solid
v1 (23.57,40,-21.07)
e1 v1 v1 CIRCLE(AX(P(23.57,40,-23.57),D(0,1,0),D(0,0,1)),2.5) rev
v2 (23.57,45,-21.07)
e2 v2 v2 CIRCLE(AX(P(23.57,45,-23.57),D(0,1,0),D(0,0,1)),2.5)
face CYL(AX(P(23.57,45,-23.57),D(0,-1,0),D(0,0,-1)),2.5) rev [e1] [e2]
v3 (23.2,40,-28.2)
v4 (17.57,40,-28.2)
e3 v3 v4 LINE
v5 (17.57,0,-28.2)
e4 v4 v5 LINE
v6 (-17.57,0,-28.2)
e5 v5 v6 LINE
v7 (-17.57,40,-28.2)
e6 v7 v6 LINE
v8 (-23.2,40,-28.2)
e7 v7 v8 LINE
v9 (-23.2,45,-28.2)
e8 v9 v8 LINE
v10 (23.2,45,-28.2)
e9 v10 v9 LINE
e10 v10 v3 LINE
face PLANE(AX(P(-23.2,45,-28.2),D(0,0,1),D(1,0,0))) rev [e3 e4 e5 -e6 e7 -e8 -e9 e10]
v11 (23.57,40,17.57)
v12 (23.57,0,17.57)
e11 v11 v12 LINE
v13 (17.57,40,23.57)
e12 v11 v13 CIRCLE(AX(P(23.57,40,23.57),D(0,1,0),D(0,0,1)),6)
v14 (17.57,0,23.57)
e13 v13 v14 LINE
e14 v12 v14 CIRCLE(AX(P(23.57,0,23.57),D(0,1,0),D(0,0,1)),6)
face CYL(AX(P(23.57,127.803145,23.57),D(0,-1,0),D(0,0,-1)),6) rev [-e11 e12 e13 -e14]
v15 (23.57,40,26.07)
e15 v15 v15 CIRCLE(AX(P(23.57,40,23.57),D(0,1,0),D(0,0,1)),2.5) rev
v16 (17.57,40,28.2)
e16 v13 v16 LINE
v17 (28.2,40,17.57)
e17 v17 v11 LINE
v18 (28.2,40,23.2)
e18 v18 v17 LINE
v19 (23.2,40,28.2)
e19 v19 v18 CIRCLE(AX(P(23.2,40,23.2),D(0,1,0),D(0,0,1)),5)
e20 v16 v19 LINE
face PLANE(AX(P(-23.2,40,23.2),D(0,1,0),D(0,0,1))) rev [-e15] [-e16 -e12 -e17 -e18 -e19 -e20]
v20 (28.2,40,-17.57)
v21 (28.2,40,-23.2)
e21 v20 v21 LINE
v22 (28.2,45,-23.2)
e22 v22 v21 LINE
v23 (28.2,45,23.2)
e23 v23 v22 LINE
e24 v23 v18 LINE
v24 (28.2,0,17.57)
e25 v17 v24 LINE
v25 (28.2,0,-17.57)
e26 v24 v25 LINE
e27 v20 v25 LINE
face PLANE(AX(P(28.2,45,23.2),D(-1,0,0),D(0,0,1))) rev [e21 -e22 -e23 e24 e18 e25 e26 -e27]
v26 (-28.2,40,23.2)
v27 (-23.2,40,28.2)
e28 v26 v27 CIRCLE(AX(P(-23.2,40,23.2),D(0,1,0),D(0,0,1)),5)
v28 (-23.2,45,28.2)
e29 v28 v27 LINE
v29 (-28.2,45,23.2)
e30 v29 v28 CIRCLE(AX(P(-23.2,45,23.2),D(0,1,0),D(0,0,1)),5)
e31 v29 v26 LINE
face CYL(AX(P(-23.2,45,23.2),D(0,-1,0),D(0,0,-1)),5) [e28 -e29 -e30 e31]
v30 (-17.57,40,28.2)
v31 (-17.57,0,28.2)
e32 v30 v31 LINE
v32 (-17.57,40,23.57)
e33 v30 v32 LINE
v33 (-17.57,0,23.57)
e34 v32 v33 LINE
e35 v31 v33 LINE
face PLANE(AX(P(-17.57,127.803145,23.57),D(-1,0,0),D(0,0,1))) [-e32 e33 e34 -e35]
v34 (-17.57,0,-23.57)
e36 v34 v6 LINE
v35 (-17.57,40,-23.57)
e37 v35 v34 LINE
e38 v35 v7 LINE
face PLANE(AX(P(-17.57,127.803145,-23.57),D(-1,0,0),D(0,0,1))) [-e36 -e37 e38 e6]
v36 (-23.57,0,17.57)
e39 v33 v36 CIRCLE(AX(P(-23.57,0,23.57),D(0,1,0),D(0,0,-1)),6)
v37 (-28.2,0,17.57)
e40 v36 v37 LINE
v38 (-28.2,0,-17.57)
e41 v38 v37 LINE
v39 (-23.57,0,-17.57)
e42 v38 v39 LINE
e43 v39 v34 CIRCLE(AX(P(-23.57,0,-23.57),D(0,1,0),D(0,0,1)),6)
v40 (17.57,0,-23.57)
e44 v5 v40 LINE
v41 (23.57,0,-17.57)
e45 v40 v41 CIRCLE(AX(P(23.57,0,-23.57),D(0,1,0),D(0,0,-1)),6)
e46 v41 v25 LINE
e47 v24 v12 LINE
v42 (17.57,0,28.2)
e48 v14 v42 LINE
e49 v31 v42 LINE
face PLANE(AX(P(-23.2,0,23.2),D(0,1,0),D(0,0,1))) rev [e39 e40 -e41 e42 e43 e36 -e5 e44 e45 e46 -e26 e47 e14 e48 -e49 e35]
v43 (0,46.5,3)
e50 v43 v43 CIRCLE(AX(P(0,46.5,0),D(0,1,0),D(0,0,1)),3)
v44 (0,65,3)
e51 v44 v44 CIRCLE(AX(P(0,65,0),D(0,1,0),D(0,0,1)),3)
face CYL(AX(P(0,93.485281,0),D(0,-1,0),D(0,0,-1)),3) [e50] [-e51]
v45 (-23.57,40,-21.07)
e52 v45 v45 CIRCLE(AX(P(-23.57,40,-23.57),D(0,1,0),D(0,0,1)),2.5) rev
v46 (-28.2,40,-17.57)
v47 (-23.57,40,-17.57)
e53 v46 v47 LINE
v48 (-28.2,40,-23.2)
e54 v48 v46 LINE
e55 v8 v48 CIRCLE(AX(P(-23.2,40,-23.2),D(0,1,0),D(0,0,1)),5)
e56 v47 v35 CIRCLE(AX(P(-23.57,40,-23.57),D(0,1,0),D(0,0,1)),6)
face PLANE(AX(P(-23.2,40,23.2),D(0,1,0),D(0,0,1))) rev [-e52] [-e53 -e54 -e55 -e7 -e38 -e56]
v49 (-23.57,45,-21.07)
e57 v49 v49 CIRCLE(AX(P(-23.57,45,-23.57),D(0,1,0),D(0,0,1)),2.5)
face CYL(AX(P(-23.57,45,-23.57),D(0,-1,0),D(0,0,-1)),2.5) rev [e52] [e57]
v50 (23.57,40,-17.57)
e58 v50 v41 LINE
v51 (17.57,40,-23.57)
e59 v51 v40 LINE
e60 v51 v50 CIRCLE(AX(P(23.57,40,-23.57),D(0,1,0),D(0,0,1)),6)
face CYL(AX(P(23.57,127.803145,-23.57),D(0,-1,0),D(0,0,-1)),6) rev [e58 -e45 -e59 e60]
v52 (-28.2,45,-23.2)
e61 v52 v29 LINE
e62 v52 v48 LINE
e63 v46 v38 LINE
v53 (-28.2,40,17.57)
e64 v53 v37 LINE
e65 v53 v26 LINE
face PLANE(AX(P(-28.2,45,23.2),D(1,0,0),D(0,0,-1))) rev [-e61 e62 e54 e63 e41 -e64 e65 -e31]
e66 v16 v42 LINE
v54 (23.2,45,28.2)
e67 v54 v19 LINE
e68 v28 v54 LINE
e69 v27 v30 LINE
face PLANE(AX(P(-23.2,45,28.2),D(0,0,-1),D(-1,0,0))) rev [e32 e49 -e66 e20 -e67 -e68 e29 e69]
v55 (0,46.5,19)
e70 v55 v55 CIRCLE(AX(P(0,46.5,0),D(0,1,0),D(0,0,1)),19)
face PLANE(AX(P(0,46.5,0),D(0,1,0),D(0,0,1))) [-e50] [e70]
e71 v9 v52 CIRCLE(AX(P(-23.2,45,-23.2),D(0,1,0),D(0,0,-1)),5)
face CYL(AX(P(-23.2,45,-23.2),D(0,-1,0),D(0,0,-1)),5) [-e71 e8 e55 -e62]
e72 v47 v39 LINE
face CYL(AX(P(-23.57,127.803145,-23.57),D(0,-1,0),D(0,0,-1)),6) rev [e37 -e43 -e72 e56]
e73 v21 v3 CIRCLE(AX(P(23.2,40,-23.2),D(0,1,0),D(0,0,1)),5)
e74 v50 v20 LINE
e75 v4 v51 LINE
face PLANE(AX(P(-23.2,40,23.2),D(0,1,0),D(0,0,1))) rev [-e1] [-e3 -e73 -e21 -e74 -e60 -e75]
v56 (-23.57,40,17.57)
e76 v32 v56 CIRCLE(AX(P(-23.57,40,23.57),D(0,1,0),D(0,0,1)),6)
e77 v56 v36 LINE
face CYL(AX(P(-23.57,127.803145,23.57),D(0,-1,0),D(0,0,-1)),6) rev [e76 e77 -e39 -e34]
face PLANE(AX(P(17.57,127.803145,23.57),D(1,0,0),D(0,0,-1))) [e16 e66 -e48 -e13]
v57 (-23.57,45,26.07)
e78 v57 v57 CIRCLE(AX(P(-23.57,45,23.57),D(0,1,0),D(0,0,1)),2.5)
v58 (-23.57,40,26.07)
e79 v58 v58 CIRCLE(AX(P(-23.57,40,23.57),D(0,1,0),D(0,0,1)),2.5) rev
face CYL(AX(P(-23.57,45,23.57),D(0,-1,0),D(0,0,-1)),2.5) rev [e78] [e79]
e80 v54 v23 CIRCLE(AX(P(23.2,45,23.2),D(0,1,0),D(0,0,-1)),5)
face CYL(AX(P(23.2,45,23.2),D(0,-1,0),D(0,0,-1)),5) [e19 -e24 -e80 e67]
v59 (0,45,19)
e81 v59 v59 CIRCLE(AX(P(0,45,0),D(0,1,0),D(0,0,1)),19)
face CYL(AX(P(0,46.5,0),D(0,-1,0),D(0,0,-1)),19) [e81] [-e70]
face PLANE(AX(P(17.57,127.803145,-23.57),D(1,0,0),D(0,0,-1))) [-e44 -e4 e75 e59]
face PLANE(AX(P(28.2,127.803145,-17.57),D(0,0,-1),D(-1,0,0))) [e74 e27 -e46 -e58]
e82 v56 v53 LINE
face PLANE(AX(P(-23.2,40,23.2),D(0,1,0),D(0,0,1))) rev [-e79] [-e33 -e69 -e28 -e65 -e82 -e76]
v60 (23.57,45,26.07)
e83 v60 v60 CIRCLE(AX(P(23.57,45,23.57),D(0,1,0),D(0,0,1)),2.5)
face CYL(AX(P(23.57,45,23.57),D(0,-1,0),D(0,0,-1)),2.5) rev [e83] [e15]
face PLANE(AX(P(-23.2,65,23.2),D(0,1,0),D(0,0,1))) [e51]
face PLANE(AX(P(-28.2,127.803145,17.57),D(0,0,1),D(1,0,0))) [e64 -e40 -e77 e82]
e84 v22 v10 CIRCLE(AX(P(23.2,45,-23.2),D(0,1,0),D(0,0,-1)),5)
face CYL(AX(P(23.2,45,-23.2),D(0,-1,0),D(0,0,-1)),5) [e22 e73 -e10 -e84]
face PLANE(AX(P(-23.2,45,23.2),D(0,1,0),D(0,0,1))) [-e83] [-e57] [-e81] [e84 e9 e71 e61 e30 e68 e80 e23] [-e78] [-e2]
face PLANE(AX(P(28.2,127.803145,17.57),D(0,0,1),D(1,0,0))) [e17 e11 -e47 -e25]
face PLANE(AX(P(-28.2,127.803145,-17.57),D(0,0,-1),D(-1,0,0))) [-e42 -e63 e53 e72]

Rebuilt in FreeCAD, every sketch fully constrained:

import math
import FreeCAD as App
import Part
import Sketcher
from FreeCAD import Vector


def add_polygon(sketch, points):
    """Adds a closed chain of lines whose ends are joined by coincident constraints."""
    first, n = sketch.GeometryCount, len(points)
    for a, b in zip(points, points[1:] + points[:1]):
        sketch.addGeometry(Part.LineSegment(App.Vector(*a, 0), App.Vector(*b, 0)), False)
    for i in range(n):
        sketch.addConstraint(Sketcher.Constraint("Coincident", first + i, 2, first + (i + 1) % n, 1))

doc = App.newDocument("Part")
body = doc.addObject("PartDesign::Body", "Body")

# Sketch on XZ plane
sketch1 = doc.addObject("Sketcher::SketchObject", "Sketch")
body.addObject(sketch1)
sketch1.AttachmentSupport = (doc.XZ_Plane, [""])
sketch1.MapMode = "FlatFace"
sketch1.addGeometry([
    Part.LineSegment(Vector(-28.2, -23.2, 0), Vector(-28.2, 23.2, 0)),  # 0
    Part.ArcOfCircle(Part.Circle(Vector(-23.2, 23.2, 0), Vector(0, 0, 1), 5), math.radians(90), math.radians(180)),  # 1
    Part.LineSegment(Vector(-23.2, 28.2, 0), Vector(23.2, 28.2, 0)),  # 2
    Part.ArcOfCircle(Part.Circle(Vector(23.2, 23.2, 0), Vector(0, 0, 1), 5), math.radians(0), math.radians(90)),  # 3
    Part.LineSegment(Vector(28.2, 23.2, 0), Vector(28.2, -23.2, 0)),  # 4
    Part.ArcOfCircle(Part.Circle(Vector(23.2, -23.2, 0), Vector(0, 0, 1), 5), math.radians(-90), math.radians(0)),  # 5
    Part.LineSegment(Vector(23.2, -28.2, 0), Vector(-23.2, -28.2, 0)),  # 6
    Part.ArcOfCircle(Part.Circle(Vector(-23.2, -23.2, 0), Vector(0, 0, 1), 5), math.radians(180), math.radians(270)),  # 7
], False)
sketch1.addConstraint([
    Sketcher.Constraint("Tangent", 0, 2, 1, 2),
    Sketcher.Constraint("Tangent", 1, 1, 2, 1),
    Sketcher.Constraint("Tangent", 2, 2, 3, 2),
    Sketcher.Constraint("Tangent", 3, 1, 4, 1),
    Sketcher.Constraint("Tangent", 4, 2, 5, 2),
    Sketcher.Constraint("Tangent", 5, 1, 6, 1),
    Sketcher.Constraint("Tangent", 6, 2, 7, 2),
    Sketcher.Constraint("Tangent", 7, 1, 0, 1),
    Sketcher.Constraint("Vertical", 0),
    Sketcher.Constraint("Horizontal", 2),
    Sketcher.Constraint("Vertical", 4),
    Sketcher.Constraint("Horizontal", 6),
    Sketcher.Constraint("Equal", 1, 3),
    Sketcher.Constraint("Equal", 3, 5),
    Sketcher.Constraint("Equal", 5, 7),
    Sketcher.Constraint("Symmetric", 1, 3, 5, 3, -1, 1),
    Sketcher.Constraint("Equal", 6, 0),
    Sketcher.Constraint("Radius", 1, 5.0),
    Sketcher.Constraint("DistanceX", 2, 1, 2, 2, 46.4),
])
pad1 = doc.addObject("PartDesign::Pad", "Pad")
body.addObject(pad1)
pad1.Profile = sketch1
pad1.Length = 45
pad1.Reversed = True

# Sketch on XZ plane
sketch2 = doc.addObject("Sketcher::SketchObject", "Sketch001")
body.addObject(sketch2)
sketch2.AttachmentSupport = (doc.XZ_Plane, [""])
sketch2.MapMode = "FlatFace"
add_polygon(sketch2, [(-38.358, 38.358), (-38.358, -38.358), (38.358, -38.358), (38.358, 38.358)])  # lines 0-3
sketch2.addGeometry(Part.LineSegment(Vector(-28.2, -17.57, 0), Vector(-28.2, 17.57, 0)), False)  # 4
sketch2.addGeometry(Part.LineSegment(Vector(-28.2, 17.57, 0), Vector(-23.57, 17.57, 0)), False)  # 5
sketch2.addGeometry(Part.ArcOfCircle(Part.Circle(Vector(-23.57, 23.57, 0), Vector(0, 0, 1), 6), math.radians(-90), math.radians(0)), False)  # 6
sketch2.addGeometry(Part.LineSegment(Vector(-17.57, 23.57, 0), Vector(-17.57, 28.2, 0)), False)  # 7
sketch2.addGeometry(Part.LineSegment(Vector(-17.57, 28.2, 0), Vector(17.57, 28.2, 0)), False)  # 8
sketch2.addGeometry(Part.LineSegment(Vector(17.57, 28.2, 0), Vector(17.57, 23.57, 0)), False)  # 9
sketch2.addGeometry(Part.ArcOfCircle(Part.Circle(Vector(23.57, 23.57, 0), Vector(0, 0, 1), 6), math.radians(180), math.radians(270)), False)  # 10
sketch2.addGeometry(Part.LineSegment(Vector(23.57, 17.57, 0), Vector(28.2, 17.57, 0)), False)  # 11
sketch2.addGeometry(Part.LineSegment(Vector(28.2, 17.57, 0), Vector(28.2, -17.57, 0)), False)  # 12
sketch2.addGeometry(Part.LineSegment(Vector(28.2, -17.57, 0), Vector(23.57, -17.57, 0)), False)  # 13
sketch2.addGeometry(Part.ArcOfCircle(Part.Circle(Vector(23.57, -23.57, 0), Vector(0, 0, 1), 6), math.radians(90), math.radians(180)), False)  # 14
sketch2.addGeometry(Part.LineSegment(Vector(17.57, -23.57, 0), Vector(17.57, -28.2, 0)), False)  # 15
sketch2.addGeometry(Part.LineSegment(Vector(17.57, -28.2, 0), Vector(-17.57, -28.2, 0)), False)  # 16
sketch2.addGeometry(Part.LineSegment(Vector(-17.57, -28.2, 0), Vector(-17.57, -23.57, 0)), False)  # 17
sketch2.addGeometry(Part.ArcOfCircle(Part.Circle(Vector(-23.57, -23.57, 0), Vector(0, 0, 1), 6), math.radians(0), math.radians(90)), False)  # 18
sketch2.addGeometry(Part.LineSegment(Vector(-23.57, -17.57, 0), Vector(-28.2, -17.57, 0)), False)  # 19
sketch2.addConstraint([
    Sketcher.Constraint("Coincident", 4, 2, 5, 1),
    Sketcher.Constraint("Tangent", 5, 2, 6, 1),
    Sketcher.Constraint("Tangent", 6, 2, 7, 1),
    Sketcher.Constraint("Coincident", 7, 2, 8, 1),
    Sketcher.Constraint("Coincident", 8, 2, 9, 1),
    Sketcher.Constraint("Tangent", 9, 2, 10, 1),
    Sketcher.Constraint("Tangent", 10, 2, 11, 1),
    Sketcher.Constraint("Coincident", 11, 2, 12, 1),
    Sketcher.Constraint("Coincident", 12, 2, 13, 1),
    Sketcher.Constraint("Tangent", 13, 2, 14, 1),
    Sketcher.Constraint("Tangent", 14, 2, 15, 1),
    Sketcher.Constraint("Coincident", 15, 2, 16, 1),
    Sketcher.Constraint("Coincident", 16, 2, 17, 1),
    Sketcher.Constraint("Tangent", 17, 2, 18, 1),
    Sketcher.Constraint("Tangent", 18, 2, 19, 1),
    Sketcher.Constraint("Coincident", 19, 2, 4, 1),
    Sketcher.Constraint("Vertical", 0),
    Sketcher.Constraint("Horizontal", 1),
    Sketcher.Constraint("Vertical", 2),
    Sketcher.Constraint("Horizontal", 3),
    Sketcher.Constraint("Vertical", 4),
    Sketcher.Constraint("Horizontal", 5),
    Sketcher.Constraint("Vertical", 7),
    Sketcher.Constraint("Horizontal", 8),
    Sketcher.Constraint("Vertical", 9),
    Sketcher.Constraint("Horizontal", 11),
    Sketcher.Constraint("Vertical", 12),
    Sketcher.Constraint("Horizontal", 13),
    Sketcher.Constraint("Vertical", 15),
    Sketcher.Constraint("Horizontal", 16),
    Sketcher.Constraint("Vertical", 17),
    Sketcher.Constraint("Horizontal", 19),
    Sketcher.Constraint("Equal", 6, 10),
    Sketcher.Constraint("Equal", 10, 14),
    Sketcher.Constraint("Equal", 14, 18),
    Sketcher.Constraint("Symmetric", 6, 3, 14, 3, -1, 1),
    Sketcher.Constraint("Symmetric", 10, 3, 18, 3, -1, 1),
    Sketcher.Constraint("Symmetric", 0, 2, 2, 2, -1, 1),
    Sketcher.Constraint("Symmetric", 6, 3, 10, 3, -2),
    Sketcher.Constraint("Equal", 5, 11),
    Sketcher.Constraint("Equal", 3, 0),
    Sketcher.Constraint("Equal", 16, 4),
    Sketcher.Constraint("Equal", 19, 7),
    Sketcher.Constraint("Equal", 9, 15),
    Sketcher.Constraint("Radius", 6, 6.0),
    Sketcher.Constraint("DistanceX", 5, 1, 5, 2, 4.63),
    Sketcher.Constraint("DistanceX", 8, 1, 8, 2, 35.14),
    Sketcher.Constraint("DistanceX", 1, 1, 1, 2, 76.716),
])
pocket1 = doc.addObject("PartDesign::Pocket", "Pocket")
body.addObject(pocket1)
pocket1.Profile = sketch2
pocket1.Length = 40

# Sketch on XZ plane
sketch3 = doc.addObject("Sketcher::SketchObject", "Sketch002")
body.addObject(sketch3)
sketch3.AttachmentSupport = (doc.XZ_Plane, [""])
sketch3.MapMode = "FlatFace"
sketch3.addGeometry([
    Part.Circle(Vector(23.57, 23.57, 0), Vector(0, 0, 1), 2.5),
    Part.Circle(Vector(-23.57, 23.57, 0), Vector(0, 0, 1), 2.5),
    Part.Circle(Vector(23.57, -23.57, 0), Vector(0, 0, 1), 2.5),
    Part.Circle(Vector(-23.57, -23.57, 0), Vector(0, 0, 1), 2.5),
], False)
sketch3.addConstraint([
    Sketcher.Constraint("Equal", 0, 1),
    Sketcher.Constraint("Equal", 1, 2),
    Sketcher.Constraint("Equal", 2, 3),
    Sketcher.Constraint("Symmetric", 1, 3, 2, 3, -1, 1),
    Sketcher.Constraint("Symmetric", 0, 3, 3, 3, -1, 1),
    Sketcher.Constraint("Symmetric", 0, 3, 1, 3, -2),
    Sketcher.Constraint("Diameter", 0, 5.0),
    Sketcher.Constraint("DistanceX", -1, 1, 0, 3, 23.57),
    Sketcher.Constraint("DistanceY", -1, 1, 0, 3, 23.57),
])
pocket2 = doc.addObject("PartDesign::Pocket", "Pocket001")
body.addObject(pocket2)
pocket2.Profile = sketch3
pocket2.Type = "ThroughAll"
pocket2.Midplane = True

# Sketch on XZ plane
sketch4 = doc.addObject("Sketcher::SketchObject", "Sketch003")
body.addObject(sketch4)
sketch4.AttachmentSupport = (doc.XZ_Plane, [""])
sketch4.MapMode = "FlatFace"
sketch4.AttachmentOffset = App.Placement(Vector(0, 0, -45), App.Rotation())
sketch4.addGeometry(Part.Circle(Vector(0, 0, 0), Vector(0, 0, 1), 19), False)
sketch4.addConstraint([
    Sketcher.Constraint("Coincident", 0, 3, -1, 1),
    Sketcher.Constraint("Diameter", 0, 38.0),
])
pad2 = doc.addObject("PartDesign::Pad", "Pad001")
body.addObject(pad2)
pad2.Profile = sketch4
pad2.Length = 1.5
pad2.Reversed = True

# Sketch on XZ plane
sketch5 = doc.addObject("Sketcher::SketchObject", "Sketch004")
body.addObject(sketch5)
sketch5.AttachmentSupport = (doc.XZ_Plane, [""])
sketch5.MapMode = "FlatFace"
sketch5.AttachmentOffset = App.Placement(Vector(0, 0, -46.5), App.Rotation())
sketch5.addGeometry(Part.Circle(Vector(0, 0, 0), Vector(0, 0, 1), 3), False)
sketch5.addConstraint([
    Sketcher.Constraint("Coincident", 0, 3, -1, 1),
    Sketcher.Constraint("Diameter", 0, 6.0),
])
pad3 = doc.addObject("PartDesign::Pad", "Pad002")
body.addObject(pad3)
pad3.Profile = sketch5
pad3.Length = 18.5
pad3.Reversed = True

doc.recompute()
